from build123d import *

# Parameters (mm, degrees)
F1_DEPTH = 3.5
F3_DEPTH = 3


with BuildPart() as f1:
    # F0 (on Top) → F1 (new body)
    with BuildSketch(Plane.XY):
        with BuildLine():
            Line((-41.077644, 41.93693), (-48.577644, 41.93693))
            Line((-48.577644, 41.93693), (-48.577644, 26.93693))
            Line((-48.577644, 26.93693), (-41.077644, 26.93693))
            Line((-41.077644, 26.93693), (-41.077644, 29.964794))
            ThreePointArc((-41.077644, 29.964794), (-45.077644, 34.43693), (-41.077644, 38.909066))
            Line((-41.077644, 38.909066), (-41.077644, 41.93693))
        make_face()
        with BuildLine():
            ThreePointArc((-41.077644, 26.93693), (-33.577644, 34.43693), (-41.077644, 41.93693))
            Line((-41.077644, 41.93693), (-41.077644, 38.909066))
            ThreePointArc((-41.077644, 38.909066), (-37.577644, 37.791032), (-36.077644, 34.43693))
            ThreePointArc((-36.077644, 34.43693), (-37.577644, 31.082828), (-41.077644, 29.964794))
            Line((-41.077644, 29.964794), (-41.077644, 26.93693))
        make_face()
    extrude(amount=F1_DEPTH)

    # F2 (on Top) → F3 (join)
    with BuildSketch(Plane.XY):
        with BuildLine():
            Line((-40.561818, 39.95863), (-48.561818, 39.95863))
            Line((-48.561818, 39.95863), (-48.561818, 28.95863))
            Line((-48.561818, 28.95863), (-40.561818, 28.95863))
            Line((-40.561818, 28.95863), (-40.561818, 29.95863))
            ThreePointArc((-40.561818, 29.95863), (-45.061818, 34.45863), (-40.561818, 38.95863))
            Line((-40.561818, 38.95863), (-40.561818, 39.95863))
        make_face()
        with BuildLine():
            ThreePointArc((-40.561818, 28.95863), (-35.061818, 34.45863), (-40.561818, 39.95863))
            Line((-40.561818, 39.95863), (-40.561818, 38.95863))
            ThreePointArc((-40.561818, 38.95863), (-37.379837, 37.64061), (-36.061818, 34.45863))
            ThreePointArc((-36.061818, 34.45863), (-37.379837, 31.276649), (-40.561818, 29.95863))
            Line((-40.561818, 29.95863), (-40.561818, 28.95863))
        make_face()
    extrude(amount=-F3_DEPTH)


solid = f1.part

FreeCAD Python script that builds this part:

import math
import FreeCAD as App
import Part
import Sketcher

V = App.Vector
Q = App.Units.Quantity

doc = App.newDocument("Part")
body = doc.addObject("PartDesign::Body", "Body")

# Sketch on XY plane
sketch1 = body.newObject("Sketcher::SketchObject", "Sketch")
sketch1.AttachmentSupport = (doc.getObject("XY_Plane"), [""])
sketch1.MapMode = "FlatFace"
sketch1.addGeometry([
    Part.LineSegment(V(-41.077644, 41.93693, 0), V(-48.577644, 41.93693, 0)),  # 0
    Part.LineSegment(V(-48.577644, 41.93693, 0), V(-48.577644, 26.93693, 0)),  # 1
    Part.LineSegment(V(-48.577644, 26.93693, 0), V(-41.077644, 26.93693, 0)),  # 2
    Part.ArcOfCircle(Part.Circle(V(-41.077644, 34.43693, 0), V(0, 0, 1), 7.5), math.radians(-90), math.radians(90)),  # 3
    Part.ArcOfCircle(Part.Circle(V(-40.577644, 34.43693, 0), V(0, 0, 1), 4.5), math.radians(96.379371), math.radians(263.620629)),  # 4
    Part.ArcOfCircle(Part.Circle(V(-40.577644, 34.43693, 0), V(0, 0, 1), 4.5), math.radians(0), math.radians(96.37937)),  # 5
    Part.ArcOfCircle(Part.Circle(V(-40.577644, 34.43693, 0), V(0, 0, 1), 4.5), math.radians(-96.37937), math.radians(0)),  # 6
], False)
sketch1.addConstraint([
    Sketcher.Constraint("Coincident", 0, 2, 1, 1),
    Sketcher.Constraint("Coincident", 1, 2, 2, 1),
    Sketcher.Constraint("Tangent", 2, 2, 3, 1),
    Sketcher.Constraint("Tangent", 3, 2, 0, 1),
    Sketcher.Constraint("Tangent", 4, 1, 5, 2),
    Sketcher.Constraint("Tangent", 5, 1, 6, 2),
    Sketcher.Constraint("Tangent", 6, 1, 4, 2),
    Sketcher.Constraint("Horizontal", 0),
    Sketcher.Constraint("Vertical", 1),
    Sketcher.Constraint("Horizontal", 2),
    Sketcher.Constraint("Horizontal", 3, 3, 4, 3),
    Sketcher.Constraint("Horizontal", 6, 3, 5, 1),
    Sketcher.Constraint("Vertical", 3, 2, 4, 1),
    Sketcher.Constraint("Vertical", 4, 1, 6, 1),
    Sketcher.Constraint("Radius", 3, Q("7.5 mm")),
    Sketcher.Constraint("Radius", 4, Q("4.5 mm")),
    Sketcher.Constraint("DistanceX", 0, 2, 0, 1, Q("7.5 mm")),
    Sketcher.Constraint("DistanceX", 0, 2, 5, 3, Q("8 mm")),
    Sketcher.Constraint("DistanceY", -1, 1, 3, 3, Q("34.43693 mm")),
    Sketcher.Constraint("DistanceX", 3, 3, -1, 1, Q("41.077644 mm")),
])
pad1 = body.newObject("PartDesign::Pad", "Pad")
pad1.Profile = sketch1
pad1.Length = 3.5

# Sketch on XY plane
sketch2 = body.newObject("Sketcher::SketchObject", "Sketch001")
sketch2.AttachmentSupport = (doc.getObject("XY_Plane"), [""])
sketch2.MapMode = "FlatFace"
sketch2.addGeometry([
    Part.LineSegment(V(-40.561818, 39.95863, 0), V(-48.561818, 39.95863, 0)),  # 0
    Part.LineSegment(V(-48.561818, 39.95863, 0), V(-48.561818, 28.95863, 0)),  # 1
    Part.LineSegment(V(-48.561818, 28.95863, 0), V(-40.561818, 28.95863, 0)),  # 2
    Part.ArcOfCircle(Part.Circle(V(-40.561818, 34.45863, 0), V(0, 0, 1), 5.5), math.radians(-90), math.radians(90)),  # 3
    Part.ArcOfCircle(Part.Circle(V(-40.561818, 34.45863, 0), V(0, 0, 1), 4.5), math.radians(90), math.radians(270)),  # 4
    Part.ArcOfCircle(Part.Circle(V(-40.561818, 34.45863, 0), V(0, 0, 1), 4.5), math.radians(0.000001), math.radians(89.999999)),  # 5
    Part.ArcOfCircle(Part.Circle(V(-40.561816, 34.458628, 0), V(0, 0, 1), 4.499998), math.radians(-90.000021), math.radians(0.000021)),  # 6
], False)
sketch2.addConstraint([
    Sketcher.Constraint("Coincident", 0, 2, 1, 1),
    Sketcher.Constraint("Coincident", 1, 2, 2, 1),
    Sketcher.Constraint("Tangent", 2, 2, 3, 1),
    Sketcher.Constraint("Tangent", 3, 2, 0, 1),
    Sketcher.Constraint("Tangent", 4, 1, 5, 2),
    Sketcher.Constraint("Tangent", 5, 1, 6, 2),
    Sketcher.Constraint("Tangent", 6, 1, 4, 2),
    Sketcher.Constraint("Horizontal", 0),
    Sketcher.Constraint("Vertical", 1),
    Sketcher.Constraint("Horizontal", 2),
    Sketcher.Constraint("Coincident", 4, 3, 3, 3),
    Sketcher.Constraint("Horizontal", 6, 3, 5, 1),
    Sketcher.Constraint("Vertical", 3, 2, 4, 1),
    Sketcher.Constraint("Vertical", 4, 1, 6, 1),
    Sketcher.Constraint("Radius", 3, Q("5.5 mm")),
    Sketcher.Constraint("Radius", 4, Q("4.5 mm")),
    Sketcher.Constraint("DistanceX", 0, 2, 0, 1, Q("8 mm")),
    Sketcher.Constraint("DistanceX", 3, 3, -1, 1, Q("40.561818 mm")),
    Sketcher.Constraint("DistanceY", -1, 1, 3, 3, Q("34.45863 mm")),
])
pad2 = body.newObject("PartDesign::Pad", "Pad001")
pad2.Profile = sketch2
pad2.Length = 3
pad2.Reversed = True

doc.recompute()
